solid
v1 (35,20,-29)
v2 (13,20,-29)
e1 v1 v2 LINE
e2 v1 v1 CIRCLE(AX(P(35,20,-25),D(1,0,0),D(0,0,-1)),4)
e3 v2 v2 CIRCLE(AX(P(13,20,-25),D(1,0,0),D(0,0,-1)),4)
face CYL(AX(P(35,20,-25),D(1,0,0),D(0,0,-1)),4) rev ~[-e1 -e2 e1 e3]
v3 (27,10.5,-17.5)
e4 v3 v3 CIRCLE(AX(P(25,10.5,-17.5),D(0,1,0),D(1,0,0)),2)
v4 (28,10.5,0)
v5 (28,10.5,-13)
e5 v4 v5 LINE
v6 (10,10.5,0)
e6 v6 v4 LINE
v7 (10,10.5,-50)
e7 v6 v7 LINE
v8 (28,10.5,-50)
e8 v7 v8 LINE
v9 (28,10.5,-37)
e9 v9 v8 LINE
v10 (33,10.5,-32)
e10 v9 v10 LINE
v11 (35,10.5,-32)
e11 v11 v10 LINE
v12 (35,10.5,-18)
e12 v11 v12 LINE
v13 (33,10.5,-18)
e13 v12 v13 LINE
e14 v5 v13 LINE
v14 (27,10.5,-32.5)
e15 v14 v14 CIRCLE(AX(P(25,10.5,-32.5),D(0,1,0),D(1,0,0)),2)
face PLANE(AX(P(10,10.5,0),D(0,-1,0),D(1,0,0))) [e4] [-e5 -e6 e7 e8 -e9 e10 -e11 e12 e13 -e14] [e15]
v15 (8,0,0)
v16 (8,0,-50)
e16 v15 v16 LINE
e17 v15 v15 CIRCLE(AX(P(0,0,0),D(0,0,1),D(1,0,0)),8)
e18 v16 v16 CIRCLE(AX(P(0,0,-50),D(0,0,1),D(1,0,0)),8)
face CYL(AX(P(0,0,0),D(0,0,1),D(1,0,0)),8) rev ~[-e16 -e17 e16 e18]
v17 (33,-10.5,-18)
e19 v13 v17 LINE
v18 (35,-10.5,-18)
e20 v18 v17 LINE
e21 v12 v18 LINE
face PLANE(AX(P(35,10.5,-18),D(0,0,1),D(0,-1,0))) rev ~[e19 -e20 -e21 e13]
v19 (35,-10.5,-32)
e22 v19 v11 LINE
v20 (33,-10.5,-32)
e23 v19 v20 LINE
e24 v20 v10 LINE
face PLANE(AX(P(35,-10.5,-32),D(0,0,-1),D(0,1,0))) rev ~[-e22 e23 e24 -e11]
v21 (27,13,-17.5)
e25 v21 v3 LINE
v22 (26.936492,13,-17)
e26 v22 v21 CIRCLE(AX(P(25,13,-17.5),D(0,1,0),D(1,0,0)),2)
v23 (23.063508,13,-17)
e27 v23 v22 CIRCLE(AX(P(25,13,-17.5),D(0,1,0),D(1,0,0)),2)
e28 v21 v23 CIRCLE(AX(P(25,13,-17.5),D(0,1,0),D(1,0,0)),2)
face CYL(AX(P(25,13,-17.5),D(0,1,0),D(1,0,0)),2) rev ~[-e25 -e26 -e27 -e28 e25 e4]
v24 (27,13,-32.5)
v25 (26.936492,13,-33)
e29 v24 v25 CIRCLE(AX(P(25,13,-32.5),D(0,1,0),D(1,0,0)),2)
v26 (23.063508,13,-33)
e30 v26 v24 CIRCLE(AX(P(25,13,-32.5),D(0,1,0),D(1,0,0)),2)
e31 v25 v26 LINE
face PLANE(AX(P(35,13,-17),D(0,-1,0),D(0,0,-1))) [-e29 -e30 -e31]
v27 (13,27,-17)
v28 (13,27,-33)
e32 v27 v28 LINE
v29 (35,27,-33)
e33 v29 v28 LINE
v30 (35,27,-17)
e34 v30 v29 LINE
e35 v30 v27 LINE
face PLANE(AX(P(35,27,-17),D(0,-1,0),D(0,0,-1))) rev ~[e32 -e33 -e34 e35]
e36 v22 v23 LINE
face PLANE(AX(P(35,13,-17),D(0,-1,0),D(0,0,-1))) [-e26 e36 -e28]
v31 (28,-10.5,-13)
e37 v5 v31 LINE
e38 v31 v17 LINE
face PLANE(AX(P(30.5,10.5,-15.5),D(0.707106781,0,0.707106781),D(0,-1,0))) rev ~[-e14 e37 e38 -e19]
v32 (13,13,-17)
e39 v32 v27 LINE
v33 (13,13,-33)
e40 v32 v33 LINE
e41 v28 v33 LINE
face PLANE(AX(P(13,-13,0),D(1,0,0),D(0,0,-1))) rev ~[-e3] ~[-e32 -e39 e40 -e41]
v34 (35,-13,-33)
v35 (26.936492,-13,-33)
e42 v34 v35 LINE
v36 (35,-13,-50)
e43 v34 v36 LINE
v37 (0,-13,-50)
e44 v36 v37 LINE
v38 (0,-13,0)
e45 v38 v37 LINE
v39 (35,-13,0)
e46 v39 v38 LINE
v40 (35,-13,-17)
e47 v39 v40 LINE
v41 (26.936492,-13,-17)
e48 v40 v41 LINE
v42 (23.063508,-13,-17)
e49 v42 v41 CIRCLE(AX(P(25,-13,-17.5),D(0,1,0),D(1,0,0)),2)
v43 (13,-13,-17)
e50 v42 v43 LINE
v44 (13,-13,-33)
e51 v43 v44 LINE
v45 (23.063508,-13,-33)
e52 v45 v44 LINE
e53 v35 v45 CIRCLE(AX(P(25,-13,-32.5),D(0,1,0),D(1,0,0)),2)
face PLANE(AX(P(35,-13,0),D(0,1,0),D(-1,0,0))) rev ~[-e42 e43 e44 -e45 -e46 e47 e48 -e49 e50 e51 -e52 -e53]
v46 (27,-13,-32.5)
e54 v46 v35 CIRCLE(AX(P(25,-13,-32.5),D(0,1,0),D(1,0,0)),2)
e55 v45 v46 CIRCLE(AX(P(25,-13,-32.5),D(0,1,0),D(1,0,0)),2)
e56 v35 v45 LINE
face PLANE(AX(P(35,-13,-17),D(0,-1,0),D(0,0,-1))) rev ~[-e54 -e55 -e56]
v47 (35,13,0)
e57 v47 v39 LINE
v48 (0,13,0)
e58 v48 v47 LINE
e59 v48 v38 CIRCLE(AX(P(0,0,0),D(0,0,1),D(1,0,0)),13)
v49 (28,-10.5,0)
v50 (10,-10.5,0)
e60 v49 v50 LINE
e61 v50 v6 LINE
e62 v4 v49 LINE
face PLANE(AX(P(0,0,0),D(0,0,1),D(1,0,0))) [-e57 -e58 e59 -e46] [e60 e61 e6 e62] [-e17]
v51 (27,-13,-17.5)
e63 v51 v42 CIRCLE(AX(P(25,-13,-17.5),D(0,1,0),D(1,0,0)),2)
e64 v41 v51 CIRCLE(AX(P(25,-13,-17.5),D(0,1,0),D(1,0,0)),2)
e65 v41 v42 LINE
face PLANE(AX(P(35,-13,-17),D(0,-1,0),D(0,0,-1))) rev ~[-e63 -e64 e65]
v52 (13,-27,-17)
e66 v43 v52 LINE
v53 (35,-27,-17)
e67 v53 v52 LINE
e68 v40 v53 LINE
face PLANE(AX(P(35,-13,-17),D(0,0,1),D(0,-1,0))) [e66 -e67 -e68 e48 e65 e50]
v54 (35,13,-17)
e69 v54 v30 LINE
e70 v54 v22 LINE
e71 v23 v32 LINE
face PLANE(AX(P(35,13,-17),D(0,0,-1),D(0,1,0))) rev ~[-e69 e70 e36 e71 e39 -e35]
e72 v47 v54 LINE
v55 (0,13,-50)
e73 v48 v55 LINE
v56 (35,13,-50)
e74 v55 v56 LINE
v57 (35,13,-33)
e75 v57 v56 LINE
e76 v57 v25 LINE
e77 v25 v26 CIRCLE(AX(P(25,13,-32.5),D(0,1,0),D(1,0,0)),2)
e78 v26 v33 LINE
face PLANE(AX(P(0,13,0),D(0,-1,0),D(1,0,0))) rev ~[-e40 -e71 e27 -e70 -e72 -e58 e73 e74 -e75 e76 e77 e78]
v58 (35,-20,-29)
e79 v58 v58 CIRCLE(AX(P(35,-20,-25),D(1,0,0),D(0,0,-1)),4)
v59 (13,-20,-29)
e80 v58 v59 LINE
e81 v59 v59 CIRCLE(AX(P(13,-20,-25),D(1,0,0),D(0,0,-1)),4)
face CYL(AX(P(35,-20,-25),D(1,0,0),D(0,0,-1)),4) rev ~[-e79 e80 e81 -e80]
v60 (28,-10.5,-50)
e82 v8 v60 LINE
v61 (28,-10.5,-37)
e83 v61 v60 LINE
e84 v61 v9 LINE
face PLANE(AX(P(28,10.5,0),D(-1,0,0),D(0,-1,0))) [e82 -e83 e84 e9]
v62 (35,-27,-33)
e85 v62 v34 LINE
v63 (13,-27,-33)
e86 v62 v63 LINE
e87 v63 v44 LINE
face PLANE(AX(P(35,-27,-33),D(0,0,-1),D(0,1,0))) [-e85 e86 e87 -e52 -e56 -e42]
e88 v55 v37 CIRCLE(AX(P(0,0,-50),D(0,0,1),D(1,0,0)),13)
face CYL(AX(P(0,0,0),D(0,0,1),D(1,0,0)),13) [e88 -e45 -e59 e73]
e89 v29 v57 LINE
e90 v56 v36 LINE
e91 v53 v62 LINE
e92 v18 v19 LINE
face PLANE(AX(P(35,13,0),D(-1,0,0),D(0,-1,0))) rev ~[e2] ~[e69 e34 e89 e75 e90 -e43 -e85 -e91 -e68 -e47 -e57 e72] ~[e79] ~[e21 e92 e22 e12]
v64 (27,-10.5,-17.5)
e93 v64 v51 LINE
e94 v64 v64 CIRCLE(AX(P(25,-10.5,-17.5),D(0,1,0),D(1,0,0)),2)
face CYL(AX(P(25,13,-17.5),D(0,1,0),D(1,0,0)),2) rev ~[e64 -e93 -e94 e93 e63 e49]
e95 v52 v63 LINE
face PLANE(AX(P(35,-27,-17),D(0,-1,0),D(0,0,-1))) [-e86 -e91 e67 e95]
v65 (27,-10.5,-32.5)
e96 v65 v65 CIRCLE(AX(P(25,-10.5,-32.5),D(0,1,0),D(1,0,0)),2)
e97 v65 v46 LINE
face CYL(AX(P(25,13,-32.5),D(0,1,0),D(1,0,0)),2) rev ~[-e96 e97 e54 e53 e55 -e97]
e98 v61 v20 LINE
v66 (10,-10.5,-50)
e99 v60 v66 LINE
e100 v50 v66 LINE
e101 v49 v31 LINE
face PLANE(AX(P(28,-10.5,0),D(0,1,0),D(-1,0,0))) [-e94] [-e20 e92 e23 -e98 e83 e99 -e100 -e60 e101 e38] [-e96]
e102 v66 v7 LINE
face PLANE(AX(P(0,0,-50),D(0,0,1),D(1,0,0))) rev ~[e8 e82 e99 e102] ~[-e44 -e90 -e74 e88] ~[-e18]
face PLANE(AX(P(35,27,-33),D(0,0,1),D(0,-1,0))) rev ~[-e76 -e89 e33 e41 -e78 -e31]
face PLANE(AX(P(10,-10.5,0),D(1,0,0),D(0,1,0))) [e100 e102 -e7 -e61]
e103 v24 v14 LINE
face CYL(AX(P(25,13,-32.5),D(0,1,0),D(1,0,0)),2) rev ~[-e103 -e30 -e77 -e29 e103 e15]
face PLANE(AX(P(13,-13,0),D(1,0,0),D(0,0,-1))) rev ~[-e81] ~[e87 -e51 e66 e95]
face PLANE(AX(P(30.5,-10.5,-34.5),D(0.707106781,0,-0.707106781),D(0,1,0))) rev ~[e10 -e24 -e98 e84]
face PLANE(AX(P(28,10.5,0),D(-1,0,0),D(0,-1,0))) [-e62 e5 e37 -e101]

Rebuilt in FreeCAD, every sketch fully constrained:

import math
import FreeCAD as App
import Part
import Sketcher
from FreeCAD import Vector
Q = App.Units.Quantity


def edges_at(feature, points):
    """Names of the edges that pass closest to the given points."""
    edges = feature.Shape.Edges
    near = lambda p: min(range(len(edges)), key=lambda i: edges[i].distToShape(Part.Vertex(*p))[0])
    return sorted({f"Edge{near(p) + 1}" for p in points})

doc = App.newDocument("Part")
params = doc.addObject("Spreadsheet::Sheet", "Params")
for row, (alias, value) in enumerate([
    ("sketch1_diameter", "16 mm"),
    ("sketch1_radius", "13 mm"),
    ("sketch1_width", "35 mm"),
    ("pad1_length", "50 mm"),
    ("sketch2_width", "18 mm"),
    ("sketch2_height", "21 mm"),
    ("pocket1_length", "50 mm"),
    ("sketch3_diameter", "4 mm"),
    ("sketch4_width", "21 mm"),
    ("sketch4_height", "14 mm"),
    ("pocket3_length", "7 mm"),
    ("chamfer_size", "5 mm"),
    ("sketch5_diameter", "8 mm"),
    ("sketch5_width", "14 mm"),
    ("pad2_length", "22 mm"),
], start=1):
    params.set(f"A{row}", alias)
    params.set(f"B{row}", "=" + value)
    params.setAlias(f"B{row}", alias)

body = doc.addObject("PartDesign::Body", "Body")

# Sketch on XY plane
sketch1 = body.newObject("Sketcher::SketchObject", "Sketch")
sketch1.AttachmentSupport = (doc.getObject("XY_Plane"), [""])
sketch1.MapMode = "FlatFace"
sketch1.addGeometry(Part.ArcOfCircle(Part.Circle(Vector(0, 0, 0), Vector(0, 0, 1), 13), math.radians(90), math.radians(270)), False)
sketch1.addGeometry(Part.LineSegment(Vector(0, -13, 0), Vector(35, -13, 0)), False)
sketch1.addGeometry(Part.LineSegment(Vector(35, -13, 0), Vector(35, 13, 0)), False)
sketch1.addGeometry(Part.LineSegment(Vector(35, 13, 0), Vector(0, 13, 0)), False)
sketch1.addGeometry(Part.Circle(Vector(0, 0, 0), Vector(0, 0, 1), 8), False)
sketch1.addConstraint(Sketcher.Constraint("Tangent", 0, 2, 1, 1))
sketch1.addConstraint(Sketcher.Constraint("Coincident", 1, 2, 2, 1))
sketch1.addConstraint(Sketcher.Constraint("Coincident", 2, 2, 3, 1))
sketch1.addConstraint(Sketcher.Constraint("Tangent", 3, 2, 0, 1))
sketch1.addConstraint(Sketcher.Constraint("Horizontal", 1))
sketch1.addConstraint(Sketcher.Constraint("Vertical", 2))
sketch1.addConstraint(Sketcher.Constraint("Horizontal", 3))
sketch1.addConstraint(Sketcher.Constraint("Coincident", 0, 3, -1, 1))
sketch1.addConstraint(Sketcher.Constraint("Coincident", 4, 3, -1, 1))
sketch1.addConstraint(Sketcher.Constraint("Diameter", 4, Q("16 mm")))
sketch1.addConstraint(Sketcher.Constraint("Radius", 0, Q("13 mm")))
sketch1.addConstraint(Sketcher.Constraint("DistanceX", 1, 1, 1, 2, Q("35 mm")))
sketch1.setExpression("Constraints[9]", "Params.sketch1_diameter")
sketch1.setExpression("Constraints[10]", "Params.sketch1_radius")
sketch1.setExpression("Constraints[11]", "Params.sketch1_width")
pad1 = body.newObject("PartDesign::Pad", "Pad")
pad1.Profile = sketch1
pad1.setExpression("Length", "Params.pad1_length")
pad1.Reversed = True

# Sketch on XY plane
sketch2 = body.newObject("Sketcher::SketchObject", "Sketch001")
sketch2.AttachmentSupport = (doc.getObject("XY_Plane"), [""])
sketch2.MapMode = "FlatFace"
sketch2.addGeometry(Part.LineSegment(Vector(28, 10, 0), Vector(10, 10, 0)), False)
sketch2.addGeometry(Part.LineSegment(Vector(10, 10, 0), Vector(10, -10, 0)), False)
sketch2.addGeometry(Part.LineSegment(Vector(10, -10, 0), Vector(28, -10, 0)), False)
sketch2.addGeometry(Part.LineSegment(Vector(28, -10, 0), Vector(28, 10, 0)), False)
sketch2.addConstraint(Sketcher.Constraint("Coincident", 0, 2, 1, 1))
sketch2.addConstraint(Sketcher.Constraint("Coincident", 1, 2, 2, 1))
sketch2.addConstraint(Sketcher.Constraint("Coincident", 2, 2, 3, 1))
sketch2.addConstraint(Sketcher.Constraint("Coincident", 3, 2, 0, 1))
sketch2.addConstraint(Sketcher.Constraint("Horizontal", 0))
sketch2.addConstraint(Sketcher.Constraint("Vertical", 1))
sketch2.addConstraint(Sketcher.Constraint("Horizontal", 2))
sketch2.addConstraint(Sketcher.Constraint("Vertical", 3))
sketch2.addConstraint(Sketcher.Constraint("DistanceX", 0, 2, 0, 1, Q("18 mm")))
sketch2.addConstraint(Sketcher.Constraint("DistanceY", 1, 2, 1, 1, Q("21 mm")))
sketch2.addConstraint(Sketcher.Constraint("DistanceX", -1, 1, 0, 2, Q("10 mm")))
sketch2.addConstraint(Sketcher.Constraint("DistanceY", -1, 1, 0, 2, Q("10.5 mm")))
sketch2.setExpression("Constraints[8]", "Params.sketch2_width")
sketch2.setExpression("Constraints[9]", "Params.sketch2_height")
pocket1 = body.newObject("PartDesign::Pocket", "Pocket")
pocket1.Profile = sketch2
pocket1.setExpression("Length", "Params.pocket1_length")

# Sketch on XZ plane
sketch3 = body.newObject("Sketcher::SketchObject", "Sketch002")
sketch3.AttachmentSupport = (doc.getObject("XZ_Plane"), [""])
sketch3.MapMode = "FlatFace"
sketch3.AttachmentOffset = App.Placement(Vector(0, 0, -13), App.Rotation())
sketch3.addGeometry(Part.Circle(Vector(25, -32.5, 0), Vector(0, 0, 1), 2), False)
sketch3.addGeometry(Part.Circle(Vector(25, -17.5, 0), Vector(0, 0, 1), 2), False)
sketch3.addConstraint(Sketcher.Constraint("Equal", 0, 1))
sketch3.addConstraint(Sketcher.Constraint("Vertical", 0, 3, 1, 3))
sketch3.addConstraint(Sketcher.Constraint("Diameter", 0, Q("4 mm")))
sketch3.addConstraint(Sketcher.Constraint("DistanceX", -1, 1, 0, 3, Q("25 mm")))
sketch3.addConstraint(Sketcher.Constraint("DistanceY", 0, 3, 1, 3, Q("15 mm")))
sketch3.addConstraint(Sketcher.Constraint("DistanceY", 1, 3, -1, 1, Q("17.5 mm")))
sketch3.setExpression("Constraints[2]", "Params.sketch3_diameter")
pocket2 = body.newObject("PartDesign::Pocket", "Pocket001")
pocket2.Profile = sketch3
pocket2.Type = "ThroughAll"
pocket2.Midplane = True

# Sketch on YZ plane
sketch4 = body.newObject("Sketcher::SketchObject", "Sketch003")
sketch4.AttachmentSupport = (doc.getObject("YZ_Plane"), [""])
sketch4.MapMode = "FlatFace"
sketch4.AttachmentOffset = App.Placement(Vector(0, 0, 35), App.Rotation())
sketch4.addGeometry(Part.LineSegment(Vector(10, -18, 0), Vector(-10, -18, 0)), False)
sketch4.addGeometry(Part.LineSegment(Vector(-10, -18, 0), Vector(-10, -32, 0)), False)
sketch4.addGeometry(Part.LineSegment(Vector(-10, -32, 0), Vector(10, -32, 0)), False)
sketch4.addGeometry(Part.LineSegment(Vector(10, -32, 0), Vector(10, -18, 0)), False)
sketch4.addConstraint(Sketcher.Constraint("Coincident", 0, 2, 1, 1))
sketch4.addConstraint(Sketcher.Constraint("Coincident", 1, 2, 2, 1))
sketch4.addConstraint(Sketcher.Constraint("Coincident", 2, 2, 3, 1))
sketch4.addConstraint(Sketcher.Constraint("Coincident", 3, 2, 0, 1))
sketch4.addConstraint(Sketcher.Constraint("Horizontal", 0))
sketch4.addConstraint(Sketcher.Constraint("Vertical", 1))
sketch4.addConstraint(Sketcher.Constraint("Horizontal", 2))
sketch4.addConstraint(Sketcher.Constraint("Vertical", 3))
sketch4.addConstraint(Sketcher.Constraint("DistanceX", 0, 2, 0, 1, Q("21 mm")))
sketch4.addConstraint(Sketcher.Constraint("DistanceY", 1, 2, 1, 1, Q("14 mm")))
sketch4.addConstraint(Sketcher.Constraint("DistanceY", 0, 2, -1, 1, Q("18 mm")))
sketch4.addConstraint(Sketcher.Constraint("DistanceX", 0, 2, -1, 1, Q("10.5 mm")))
sketch4.setExpression("Constraints[8]", "Params.sketch4_width")
sketch4.setExpression("Constraints[9]", "Params.sketch4_height")
pocket3 = body.newObject("PartDesign::Pocket", "Pocket002")
pocket3.Profile = sketch4
pocket3.setExpression("Length", "Params.pocket3_length")
doc.recompute()

chamfer = body.newObject("PartDesign::Chamfer", "Chamfer")
chamfer.Base = (pocket3, edges_at(pocket3, [(28, 0, -32), (28, 0, -18)]))
chamfer.setExpression("Size", "Params.chamfer_size")

# Sketch on YZ plane
sketch5 = body.newObject("Sketcher::SketchObject", "Sketch004")
sketch5.AttachmentSupport = (doc.getObject("YZ_Plane"), [""])
sketch5.MapMode = "FlatFace"
sketch5.AttachmentOffset = App.Placement(Vector(0, 0, 35), App.Rotation())
sketch5.addGeometry(Part.LineSegment(Vector(13, -17, 0), Vector(13, -33, 0)), False)
sketch5.addGeometry(Part.LineSegment(Vector(13, -33, 0), Vector(27, -33, 0)), False)
sketch5.addGeometry(Part.LineSegment(Vector(27, -33, 0), Vector(27, -17, 0)), False)
sketch5.addGeometry(Part.LineSegment(Vector(27, -17, 0), Vector(13, -17, 0)), False)
sketch5.addGeometry(Part.Circle(Vector(20, -25, 0), Vector(0, 0, 1), 4), False)
sketch5.addGeometry(Part.LineSegment(Vector(-13, -33, 0), Vector(-13, -17, 0)), False)
sketch5.addGeometry(Part.LineSegment(Vector(-13, -17, 0), Vector(-27, -17, 0)), False)
sketch5.addGeometry(Part.LineSegment(Vector(-27, -17, 0), Vector(-27, -33, 0)), False)
sketch5.addGeometry(Part.LineSegment(Vector(-27, -33, 0), Vector(-13, -33, 0)), False)
sketch5.addGeometry(Part.Circle(Vector(-20, -25, 0), Vector(0, 0, 1), 4), False)
sketch5.addConstraint(Sketcher.Constraint("Coincident", 0, 2, 1, 1))
sketch5.addConstraint(Sketcher.Constraint("Coincident", 1, 2, 2, 1))
sketch5.addConstraint(Sketcher.Constraint("Coincident", 2, 2, 3, 1))
sketch5.addConstraint(Sketcher.Constraint("Coincident", 3, 2, 0, 1))
sketch5.addConstraint(Sketcher.Constraint("Coincident", 5, 2, 6, 1))
sketch5.addConstraint(Sketcher.Constraint("Coincident", 6, 2, 7, 1))
sketch5.addConstraint(Sketcher.Constraint("Coincident", 7, 2, 8, 1))
sketch5.addConstraint(Sketcher.Constraint("Coincident", 8, 2, 5, 1))
sketch5.addConstraint(Sketcher.Constraint("Vertical", 0))
sketch5.addConstraint(Sketcher.Constraint("Horizontal", 1))
sketch5.addConstraint(Sketcher.Constraint("Vertical", 2))
sketch5.addConstraint(Sketcher.Constraint("Horizontal", 3))
sketch5.addConstraint(Sketcher.Constraint("Vertical", 5))
sketch5.addConstraint(Sketcher.Constraint("Horizontal", 6))
sketch5.addConstraint(Sketcher.Constraint("Vertical", 7))
sketch5.addConstraint(Sketcher.Constraint("Horizontal", 8))
sketch5.addConstraint(Sketcher.Constraint("Equal", 4, 9))
sketch5.addConstraint(Sketcher.Constraint("Symmetric", 4, 3, 9, 3, -2))
sketch5.addConstraint(Sketcher.Constraint("Symmetric", 3, 2, 5, 2, -2))
sketch5.addConstraint(Sketcher.Constraint("Symmetric", 1, 2, 7, 2, -2))
sketch5.addConstraint(Sketcher.Constraint("Diameter", 4, Q("8 mm")))
sketch5.addConstraint(Sketcher.Constraint("DistanceX", 1, 1, 1, 2, Q("14 mm")))
sketch5.addConstraint(Sketcher.Constraint("DistanceY", 4, 3, -1, 1, Q("25 mm")))
sketch5.addConstraint(Sketcher.Constraint("DistanceX", 9, 3, 4, 3, Q("40 mm")))
sketch5.addConstraint(Sketcher.Constraint("DistanceX", 0, 2, 4, 3, Q("7 mm")))
sketch5.addConstraint(Sketcher.Constraint("DistanceY", 0, 2, 4, 3, Q("8 mm")))
sketch5.addConstraint(Sketcher.Constraint("DistanceY", 4, 3, 2, 2, Q("8 mm")))
sketch5.setExpression("Constraints[20]", "Params.sketch5_diameter")
sketch5.setExpression("Constraints[21]", "Params.sketch5_width")
pad2 = body.newObject("PartDesign::Pad", "Pad001")
pad2.Profile = sketch5
pad2.setExpression("Length", "Params.pad2_length")
pad2.Reversed = True

doc.recompute()
